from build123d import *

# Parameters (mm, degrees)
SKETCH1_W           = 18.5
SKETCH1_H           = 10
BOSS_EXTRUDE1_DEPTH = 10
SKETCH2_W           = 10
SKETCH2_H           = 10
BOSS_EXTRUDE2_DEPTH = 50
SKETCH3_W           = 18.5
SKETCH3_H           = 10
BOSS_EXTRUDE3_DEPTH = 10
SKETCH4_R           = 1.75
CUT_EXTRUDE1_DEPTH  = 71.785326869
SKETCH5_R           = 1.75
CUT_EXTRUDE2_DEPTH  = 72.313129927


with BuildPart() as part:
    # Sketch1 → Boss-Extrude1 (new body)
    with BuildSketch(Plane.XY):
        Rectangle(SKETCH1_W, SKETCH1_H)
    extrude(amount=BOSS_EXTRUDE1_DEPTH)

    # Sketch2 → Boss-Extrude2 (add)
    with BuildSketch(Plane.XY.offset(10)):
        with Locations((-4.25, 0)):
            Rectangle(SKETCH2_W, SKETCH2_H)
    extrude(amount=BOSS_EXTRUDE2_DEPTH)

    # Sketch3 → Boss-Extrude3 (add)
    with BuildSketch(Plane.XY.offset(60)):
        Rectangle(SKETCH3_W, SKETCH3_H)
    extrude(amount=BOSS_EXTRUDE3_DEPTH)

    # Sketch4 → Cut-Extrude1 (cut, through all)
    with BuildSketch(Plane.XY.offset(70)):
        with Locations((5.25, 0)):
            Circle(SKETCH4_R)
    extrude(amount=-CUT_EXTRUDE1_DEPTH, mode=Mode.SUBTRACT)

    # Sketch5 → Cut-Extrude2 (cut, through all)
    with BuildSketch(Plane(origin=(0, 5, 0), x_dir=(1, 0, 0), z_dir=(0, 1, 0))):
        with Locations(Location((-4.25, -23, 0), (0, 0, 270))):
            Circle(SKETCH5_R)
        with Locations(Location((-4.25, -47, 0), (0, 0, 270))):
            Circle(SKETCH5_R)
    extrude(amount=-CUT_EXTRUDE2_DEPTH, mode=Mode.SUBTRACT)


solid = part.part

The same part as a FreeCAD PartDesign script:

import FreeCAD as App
import Part
import Sketcher
from FreeCAD import Vector
Q = App.Units.Quantity

doc = App.newDocument("Part")
body = doc.addObject("PartDesign::Body", "Body")

sketch1 = body.newObject("Sketcher::SketchObject", "Sketch")
sketch1.AttachmentSupport = (doc.getObject("XY_Plane"), [""])
sketch1.MapMode = "FlatFace"
sketch1.addGeometry(Part.LineSegment(Vector(-9, 5, 0), Vector(-9, -5, 0)), False)
sketch1.addGeometry(Part.LineSegment(Vector(-9, -5, 0), Vector(9, -5, 0)), False)
sketch1.addGeometry(Part.LineSegment(Vector(9, -5, 0), Vector(9, 5, 0)), False)
sketch1.addGeometry(Part.LineSegment(Vector(9, 5, 0), Vector(-9, 5, 0)), False)
sketch1.addConstraint(Sketcher.Constraint("Coincident", 0, 2, 1, 1))
sketch1.addConstraint(Sketcher.Constraint("Coincident", 1, 2, 2, 1))
sketch1.addConstraint(Sketcher.Constraint("Coincident", 2, 2, 3, 1))
sketch1.addConstraint(Sketcher.Constraint("Coincident", 3, 2, 0, 1))
sketch1.addConstraint(Sketcher.Constraint("Vertical", 0))
sketch1.addConstraint(Sketcher.Constraint("Horizontal", 1))
sketch1.addConstraint(Sketcher.Constraint("Vertical", 2))
sketch1.addConstraint(Sketcher.Constraint("Horizontal", 3))
sketch1.addConstraint(Sketcher.Constraint("Symmetric", 0, 2, 2, 2, -1, 1))
sketch1.addConstraint(Sketcher.Constraint("DistanceY", 0, 2, 0, 1, Q("10 mm")))
sketch1.addConstraint(Sketcher.Constraint("DistanceX", 1, 1, 1, 2, Q("18.5 mm")))
pad1 = body.newObject("PartDesign::Pad", "Pad")
pad1.Profile = sketch1
pad1.Length = 10

sketch2 = body.newObject("Sketcher::SketchObject", "Sketch001")
sketch2.AttachmentSupport = (doc.getObject("XY_Plane"), [""])
sketch2.MapMode = "FlatFace"
sketch2.AttachmentOffset = App.Placement(Vector(0, 0, 10), App.Rotation())
sketch2.addGeometry(Part.LineSegment(Vector(-9, 5, 0), Vector(-9, -5, 0)), False)
sketch2.addGeometry(Part.LineSegment(Vector(-9, -5, 0), Vector(1, -5, 0)), False)
sketch2.addGeometry(Part.LineSegment(Vector(1, -5, 0), Vector(1, 5, 0)), False)
sketch2.addGeometry(Part.LineSegment(Vector(1, 5, 0), Vector(-9, 5, 0)), False)
sketch2.addConstraint(Sketcher.Constraint("Coincident", 0, 2, 1, 1))
sketch2.addConstraint(Sketcher.Constraint("Coincident", 1, 2, 2, 1))
sketch2.addConstraint(Sketcher.Constraint("Coincident", 2, 2, 3, 1))
sketch2.addConstraint(Sketcher.Constraint("Coincident", 3, 2, 0, 1))
sketch2.addConstraint(Sketcher.Constraint("Vertical", 0))
sketch2.addConstraint(Sketcher.Constraint("Horizontal", 1))
sketch2.addConstraint(Sketcher.Constraint("Vertical", 2))
sketch2.addConstraint(Sketcher.Constraint("Horizontal", 3))
sketch2.addConstraint(Sketcher.Constraint("Equal", 3, 0))
sketch2.addConstraint(Sketcher.Constraint("DistanceX", 1, 1, 1, 2, Q("10 mm")))
sketch2.addConstraint(Sketcher.Constraint("DistanceY", 0, 2, -1, 1, Q("5 mm")))
sketch2.addConstraint(Sketcher.Constraint("DistanceX", 0, 2, -1, 1, Q("9.25 mm")))
pad2 = body.newObject("PartDesign::Pad", "Pad001")
pad2.Profile = sketch2
pad2.Length = 50

sketch3 = body.newObject("Sketcher::SketchObject", "Sketch002")
sketch3.AttachmentSupport = (doc.getObject("XY_Plane"), [""])
sketch3.MapMode = "FlatFace"
sketch3.AttachmentOffset = App.Placement(Vector(0, 0, 60), App.Rotation())
sketch3.addGeometry(Part.LineSegment(Vector(-9, 5, 0), Vector(-9, -5, 0)), False)
sketch3.addGeometry(Part.LineSegment(Vector(-9, -5, 0), Vector(9, -5, 0)), False)
sketch3.addGeometry(Part.LineSegment(Vector(9, -5, 0), Vector(9, 5, 0)), False)
sketch3.addGeometry(Part.LineSegment(Vector(9, 5, 0), Vector(-9, 5, 0)), False)
sketch3.addConstraint(Sketcher.Constraint("Coincident", 0, 2, 1, 1))
sketch3.addConstraint(Sketcher.Constraint("Coincident", 1, 2, 2, 1))
sketch3.addConstraint(Sketcher.Constraint("Coincident", 2, 2, 3, 1))
sketch3.addConstraint(Sketcher.Constraint("Coincident", 3, 2, 0, 1))
sketch3.addConstraint(Sketcher.Constraint("Vertical", 0))
sketch3.addConstraint(Sketcher.Constraint("Horizontal", 1))
sketch3.addConstraint(Sketcher.Constraint("Vertical", 2))
sketch3.addConstraint(Sketcher.Constraint("Horizontal", 3))
sketch3.addConstraint(Sketcher.Constraint("Symmetric", 0, 2, 2, 2, -1, 1))
sketch3.addConstraint(Sketcher.Constraint("DistanceY", 0, 2, 0, 1, Q("10 mm")))
sketch3.addConstraint(Sketcher.Constraint("DistanceX", 1, 1, 1, 2, Q("18.5 mm")))
pad3 = body.newObject("PartDesign::Pad", "Pad002")
pad3.Profile = sketch3
pad3.Length = 10

sketch4 = body.newObject("Sketcher::SketchObject", "Sketch003")
sketch4.AttachmentSupport = (doc.getObject("XY_Plane"), [""])
sketch4.MapMode = "FlatFace"
sketch4.AttachmentOffset = App.Placement(Vector(0, 0, 70), App.Rotation())
sketch4.addGeometry(Part.Circle(Vector(5.2, 0, 0), Vector(0, 0, 1), 1.8), False)
sketch4.addConstraint(Sketcher.Constraint("PointOnObject", 0, 3, -1))
sketch4.addConstraint(Sketcher.Constraint("Diameter", 0, Q("3.5 mm")))
sketch4.addConstraint(Sketcher.Constraint("DistanceX", -1, 1, 0, 3, Q("5.25 mm")))
pocket1 = body.newObject("PartDesign::Pocket", "Pocket")
pocket1.Profile = sketch4
pocket1.Type = "ThroughAll"

sketch5 = body.newObject("Sketcher::SketchObject", "Sketch004")
sketch5.AttachmentSupport = (doc.getObject("XZ_Plane"), [""])
sketch5.MapMode = "FlatFace"
sketch5.AttachmentOffset = App.Placement(Vector(0, 0, -5), App.Rotation())
sketch5.addGeometry(Part.Circle(Vector(-4.2, 23, 0), Vector(0, 0, 1), 1.8), False)
sketch5.addGeometry(Part.Circle(Vector(-4.2, 47, 0), Vector(0, 0, 1), 1.8), False)
sketch5.addConstraint(Sketcher.Constraint("Equal", 0, 1))
sketch5.addConstraint(Sketcher.Constraint("Vertical", 0, 3, 1, 3))
sketch5.addConstraint(Sketcher.Constraint("Diameter", 0, Q("3.5 mm")))
sketch5.addConstraint(Sketcher.Constraint("DistanceY", -1, 1, 0, 3, Q("23 mm")))
sketch5.addConstraint(Sketcher.Constraint("DistanceY", -1, 1, 1, 3, Q("47 mm")))
sketch5.addConstraint(Sketcher.Constraint("DistanceX", 0, 3, -1, 1, Q("4.25 mm")))
pocket2 = body.newObject("PartDesign::Pocket", "Pocket001")
pocket2.Profile = sketch5
pocket2.Type = "ThroughAll"
pocket2.Reversed = True

doc.recompute()
